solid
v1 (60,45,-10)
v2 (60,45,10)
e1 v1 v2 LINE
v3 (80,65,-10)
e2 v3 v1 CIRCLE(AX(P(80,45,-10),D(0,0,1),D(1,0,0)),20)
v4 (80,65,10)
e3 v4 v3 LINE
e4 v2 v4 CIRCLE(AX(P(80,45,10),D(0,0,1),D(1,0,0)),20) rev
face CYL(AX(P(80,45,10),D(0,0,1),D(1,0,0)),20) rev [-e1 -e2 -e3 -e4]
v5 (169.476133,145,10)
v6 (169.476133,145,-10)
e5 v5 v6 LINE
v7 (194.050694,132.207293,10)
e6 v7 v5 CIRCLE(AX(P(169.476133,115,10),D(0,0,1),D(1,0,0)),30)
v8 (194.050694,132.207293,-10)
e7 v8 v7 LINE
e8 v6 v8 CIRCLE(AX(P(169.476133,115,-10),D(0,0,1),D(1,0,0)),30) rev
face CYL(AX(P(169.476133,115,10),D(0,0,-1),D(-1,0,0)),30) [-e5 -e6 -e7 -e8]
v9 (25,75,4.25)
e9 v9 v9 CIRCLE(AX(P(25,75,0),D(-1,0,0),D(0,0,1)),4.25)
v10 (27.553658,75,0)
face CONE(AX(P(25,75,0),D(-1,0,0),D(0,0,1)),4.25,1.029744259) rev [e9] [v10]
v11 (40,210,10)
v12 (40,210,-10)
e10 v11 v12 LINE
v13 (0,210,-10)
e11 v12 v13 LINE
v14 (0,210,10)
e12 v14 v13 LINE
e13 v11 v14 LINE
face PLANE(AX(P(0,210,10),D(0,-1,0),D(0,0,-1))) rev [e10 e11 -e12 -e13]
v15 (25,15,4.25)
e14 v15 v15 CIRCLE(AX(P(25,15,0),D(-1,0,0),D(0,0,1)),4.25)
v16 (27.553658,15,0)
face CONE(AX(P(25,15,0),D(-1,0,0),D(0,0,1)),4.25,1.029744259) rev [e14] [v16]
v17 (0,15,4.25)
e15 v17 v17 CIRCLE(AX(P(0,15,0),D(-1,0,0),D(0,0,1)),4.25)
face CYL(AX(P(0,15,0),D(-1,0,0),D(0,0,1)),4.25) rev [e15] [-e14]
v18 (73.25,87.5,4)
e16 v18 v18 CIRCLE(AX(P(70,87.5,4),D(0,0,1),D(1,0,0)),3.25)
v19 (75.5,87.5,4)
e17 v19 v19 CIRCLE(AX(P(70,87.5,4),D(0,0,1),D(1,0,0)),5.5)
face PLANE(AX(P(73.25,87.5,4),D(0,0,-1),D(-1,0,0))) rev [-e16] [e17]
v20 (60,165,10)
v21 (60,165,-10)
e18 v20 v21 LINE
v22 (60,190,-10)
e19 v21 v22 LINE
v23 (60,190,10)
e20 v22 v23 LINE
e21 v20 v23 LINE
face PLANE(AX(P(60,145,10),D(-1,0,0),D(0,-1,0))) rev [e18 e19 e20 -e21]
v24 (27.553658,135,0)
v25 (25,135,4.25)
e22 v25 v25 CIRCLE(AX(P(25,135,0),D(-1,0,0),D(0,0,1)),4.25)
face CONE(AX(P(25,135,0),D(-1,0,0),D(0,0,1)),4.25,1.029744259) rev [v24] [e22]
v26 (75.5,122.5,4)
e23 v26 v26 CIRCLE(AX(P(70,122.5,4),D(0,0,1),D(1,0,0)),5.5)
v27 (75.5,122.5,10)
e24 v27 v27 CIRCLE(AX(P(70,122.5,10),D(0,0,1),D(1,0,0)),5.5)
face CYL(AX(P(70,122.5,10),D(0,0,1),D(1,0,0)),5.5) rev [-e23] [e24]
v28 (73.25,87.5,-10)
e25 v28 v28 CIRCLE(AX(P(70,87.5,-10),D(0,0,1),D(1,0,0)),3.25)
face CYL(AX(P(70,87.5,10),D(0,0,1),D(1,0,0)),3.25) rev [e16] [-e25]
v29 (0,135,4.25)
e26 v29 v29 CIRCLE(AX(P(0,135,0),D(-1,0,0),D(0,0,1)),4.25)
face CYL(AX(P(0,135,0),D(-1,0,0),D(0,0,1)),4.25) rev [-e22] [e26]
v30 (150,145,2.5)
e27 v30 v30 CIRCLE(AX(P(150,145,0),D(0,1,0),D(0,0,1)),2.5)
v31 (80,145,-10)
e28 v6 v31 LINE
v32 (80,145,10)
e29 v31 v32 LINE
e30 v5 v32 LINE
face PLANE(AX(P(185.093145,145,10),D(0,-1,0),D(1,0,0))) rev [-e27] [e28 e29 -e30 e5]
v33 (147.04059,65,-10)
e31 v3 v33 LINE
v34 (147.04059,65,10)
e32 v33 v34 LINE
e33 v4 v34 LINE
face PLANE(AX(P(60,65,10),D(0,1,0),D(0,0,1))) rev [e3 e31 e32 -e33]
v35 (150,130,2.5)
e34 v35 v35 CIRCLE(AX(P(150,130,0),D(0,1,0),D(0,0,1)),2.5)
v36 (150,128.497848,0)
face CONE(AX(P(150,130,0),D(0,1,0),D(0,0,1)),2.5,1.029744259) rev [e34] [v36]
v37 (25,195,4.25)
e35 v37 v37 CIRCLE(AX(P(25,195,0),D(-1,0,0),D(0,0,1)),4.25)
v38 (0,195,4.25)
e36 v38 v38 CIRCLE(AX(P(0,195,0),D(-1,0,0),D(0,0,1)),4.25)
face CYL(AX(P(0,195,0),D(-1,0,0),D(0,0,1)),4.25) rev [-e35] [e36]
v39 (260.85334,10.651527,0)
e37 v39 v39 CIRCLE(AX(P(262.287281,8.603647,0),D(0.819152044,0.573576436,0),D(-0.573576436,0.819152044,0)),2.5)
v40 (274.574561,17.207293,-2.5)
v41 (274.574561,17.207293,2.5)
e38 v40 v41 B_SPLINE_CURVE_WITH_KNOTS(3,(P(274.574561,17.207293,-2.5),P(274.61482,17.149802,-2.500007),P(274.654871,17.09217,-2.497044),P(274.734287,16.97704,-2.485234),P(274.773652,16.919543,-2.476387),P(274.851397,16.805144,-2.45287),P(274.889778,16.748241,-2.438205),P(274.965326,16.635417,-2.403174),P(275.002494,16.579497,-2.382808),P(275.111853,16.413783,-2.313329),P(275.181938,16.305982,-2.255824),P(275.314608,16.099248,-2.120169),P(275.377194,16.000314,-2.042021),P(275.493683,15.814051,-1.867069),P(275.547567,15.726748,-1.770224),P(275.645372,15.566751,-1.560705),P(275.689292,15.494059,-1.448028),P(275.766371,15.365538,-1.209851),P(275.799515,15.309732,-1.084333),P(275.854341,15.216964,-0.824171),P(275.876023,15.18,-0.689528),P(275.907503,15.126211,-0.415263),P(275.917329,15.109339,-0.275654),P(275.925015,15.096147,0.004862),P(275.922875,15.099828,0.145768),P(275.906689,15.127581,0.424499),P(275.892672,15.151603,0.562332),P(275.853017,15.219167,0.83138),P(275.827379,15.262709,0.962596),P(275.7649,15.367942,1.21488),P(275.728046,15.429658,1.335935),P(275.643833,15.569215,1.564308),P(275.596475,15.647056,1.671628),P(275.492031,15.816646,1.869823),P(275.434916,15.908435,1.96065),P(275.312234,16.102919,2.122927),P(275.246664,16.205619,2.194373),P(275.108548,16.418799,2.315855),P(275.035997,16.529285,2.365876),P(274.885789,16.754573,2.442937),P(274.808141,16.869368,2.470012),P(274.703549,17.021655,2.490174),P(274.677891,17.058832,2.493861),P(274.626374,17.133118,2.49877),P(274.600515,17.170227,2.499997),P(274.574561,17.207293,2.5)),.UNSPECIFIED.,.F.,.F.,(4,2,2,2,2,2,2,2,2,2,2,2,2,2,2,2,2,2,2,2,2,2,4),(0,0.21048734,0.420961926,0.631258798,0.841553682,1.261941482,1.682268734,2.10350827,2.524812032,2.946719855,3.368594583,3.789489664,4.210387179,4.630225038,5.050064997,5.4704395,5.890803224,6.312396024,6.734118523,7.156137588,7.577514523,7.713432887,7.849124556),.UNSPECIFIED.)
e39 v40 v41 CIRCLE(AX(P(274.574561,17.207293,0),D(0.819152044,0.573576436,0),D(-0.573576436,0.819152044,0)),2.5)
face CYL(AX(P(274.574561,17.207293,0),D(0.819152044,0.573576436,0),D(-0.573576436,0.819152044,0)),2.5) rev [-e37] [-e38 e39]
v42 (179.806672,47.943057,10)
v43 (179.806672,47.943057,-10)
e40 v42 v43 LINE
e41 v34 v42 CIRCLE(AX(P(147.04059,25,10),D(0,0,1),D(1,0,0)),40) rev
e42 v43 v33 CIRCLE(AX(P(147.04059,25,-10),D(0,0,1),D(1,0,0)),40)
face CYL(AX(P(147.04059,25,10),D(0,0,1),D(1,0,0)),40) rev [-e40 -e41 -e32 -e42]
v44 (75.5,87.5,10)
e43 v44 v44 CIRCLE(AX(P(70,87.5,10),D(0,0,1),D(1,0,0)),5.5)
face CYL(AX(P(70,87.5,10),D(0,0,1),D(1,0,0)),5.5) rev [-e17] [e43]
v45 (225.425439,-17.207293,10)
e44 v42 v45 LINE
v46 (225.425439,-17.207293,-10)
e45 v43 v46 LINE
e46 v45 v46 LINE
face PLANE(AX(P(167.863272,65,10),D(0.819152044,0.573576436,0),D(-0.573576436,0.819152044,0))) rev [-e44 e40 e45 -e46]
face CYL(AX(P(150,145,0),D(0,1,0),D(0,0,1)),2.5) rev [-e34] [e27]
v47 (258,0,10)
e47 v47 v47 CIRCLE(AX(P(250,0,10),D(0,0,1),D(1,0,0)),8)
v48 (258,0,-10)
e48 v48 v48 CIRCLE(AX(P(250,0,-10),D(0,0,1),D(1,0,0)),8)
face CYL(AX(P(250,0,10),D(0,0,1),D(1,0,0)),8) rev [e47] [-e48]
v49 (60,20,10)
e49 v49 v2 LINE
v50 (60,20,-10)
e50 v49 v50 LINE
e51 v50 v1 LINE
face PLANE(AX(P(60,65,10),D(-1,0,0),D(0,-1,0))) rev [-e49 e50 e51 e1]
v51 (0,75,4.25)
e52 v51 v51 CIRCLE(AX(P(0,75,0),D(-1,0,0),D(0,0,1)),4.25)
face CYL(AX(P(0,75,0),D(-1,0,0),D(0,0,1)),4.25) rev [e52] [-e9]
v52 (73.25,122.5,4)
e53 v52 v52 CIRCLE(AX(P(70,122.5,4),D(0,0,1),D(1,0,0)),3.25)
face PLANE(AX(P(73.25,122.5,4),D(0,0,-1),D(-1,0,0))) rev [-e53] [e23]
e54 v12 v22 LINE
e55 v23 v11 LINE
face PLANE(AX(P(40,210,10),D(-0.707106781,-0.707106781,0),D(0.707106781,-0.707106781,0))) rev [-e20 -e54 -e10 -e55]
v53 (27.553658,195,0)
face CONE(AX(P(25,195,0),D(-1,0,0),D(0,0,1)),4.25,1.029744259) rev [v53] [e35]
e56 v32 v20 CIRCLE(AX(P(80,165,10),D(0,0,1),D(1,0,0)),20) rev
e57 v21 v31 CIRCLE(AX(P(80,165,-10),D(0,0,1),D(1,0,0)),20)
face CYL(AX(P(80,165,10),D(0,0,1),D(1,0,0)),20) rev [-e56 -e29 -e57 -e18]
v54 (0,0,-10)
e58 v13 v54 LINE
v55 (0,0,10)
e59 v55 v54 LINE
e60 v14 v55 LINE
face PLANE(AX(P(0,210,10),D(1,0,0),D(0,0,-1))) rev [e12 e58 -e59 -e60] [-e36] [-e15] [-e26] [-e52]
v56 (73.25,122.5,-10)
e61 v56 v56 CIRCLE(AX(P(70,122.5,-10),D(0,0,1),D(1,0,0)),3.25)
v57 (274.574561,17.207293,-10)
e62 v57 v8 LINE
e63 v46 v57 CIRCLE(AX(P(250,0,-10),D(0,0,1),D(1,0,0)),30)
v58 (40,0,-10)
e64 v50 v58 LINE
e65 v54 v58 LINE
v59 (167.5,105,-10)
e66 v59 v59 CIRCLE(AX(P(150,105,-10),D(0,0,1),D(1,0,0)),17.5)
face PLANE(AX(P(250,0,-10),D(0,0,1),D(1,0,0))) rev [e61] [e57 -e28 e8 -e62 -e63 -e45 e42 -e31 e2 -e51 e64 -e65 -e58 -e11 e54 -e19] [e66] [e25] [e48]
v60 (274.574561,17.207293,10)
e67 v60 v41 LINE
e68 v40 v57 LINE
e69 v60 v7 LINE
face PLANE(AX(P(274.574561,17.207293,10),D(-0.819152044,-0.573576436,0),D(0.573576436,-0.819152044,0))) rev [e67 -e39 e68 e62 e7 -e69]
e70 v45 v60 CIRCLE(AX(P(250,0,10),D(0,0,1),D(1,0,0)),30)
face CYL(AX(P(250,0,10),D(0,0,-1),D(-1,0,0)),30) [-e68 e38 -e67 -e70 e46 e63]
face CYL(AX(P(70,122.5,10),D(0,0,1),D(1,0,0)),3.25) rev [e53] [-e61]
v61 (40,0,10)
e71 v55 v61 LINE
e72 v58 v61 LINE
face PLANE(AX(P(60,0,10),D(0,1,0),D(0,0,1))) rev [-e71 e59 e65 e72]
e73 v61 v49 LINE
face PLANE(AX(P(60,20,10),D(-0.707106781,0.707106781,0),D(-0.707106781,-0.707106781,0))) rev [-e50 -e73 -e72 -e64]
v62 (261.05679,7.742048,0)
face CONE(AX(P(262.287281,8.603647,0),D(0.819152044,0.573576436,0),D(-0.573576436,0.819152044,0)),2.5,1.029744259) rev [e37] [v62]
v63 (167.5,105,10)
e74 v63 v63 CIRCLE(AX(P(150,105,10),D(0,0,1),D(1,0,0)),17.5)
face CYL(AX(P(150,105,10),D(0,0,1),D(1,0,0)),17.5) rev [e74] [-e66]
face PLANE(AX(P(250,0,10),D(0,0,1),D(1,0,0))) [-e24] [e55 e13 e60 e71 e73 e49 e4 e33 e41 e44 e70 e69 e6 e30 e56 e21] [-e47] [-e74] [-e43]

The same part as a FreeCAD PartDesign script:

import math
import FreeCAD as App
import Part
import Sketcher

V = App.Vector
Q = App.Units.Quantity


def edges_at(feature, points):
    """Names of the edges that pass closest to the given points."""
    edges = feature.Shape.Edges
    near = lambda p: min(range(len(edges)), key=lambda i: edges[i].distToShape(Part.Vertex(*p))[0])
    return sorted({f"Edge{near(p) + 1}" for p in points})

doc = App.newDocument("Part")
body = doc.addObject("PartDesign::Body", "Body")

# Sketch on XY plane
sketch1 = doc.addObject("Sketcher::SketchObject", "Sketch")
body.addObject(sketch1)
sketch1.AttachmentSupport = (doc.XY_Plane, [""])
sketch1.MapMode = "FlatFace"
sketch1.addGeometry([
    Part.LineSegment(V(60, 210, 0), V(0, 210, 0)),  # 0
    Part.LineSegment(V(0, 210, 0), V(0, 0, 0)),  # 1
    Part.LineSegment(V(0, 0, 0), V(60, 0, 0)),  # 2
    Part.LineSegment(V(60, 0, 0), V(60, 65, 0)),  # 3
    Part.LineSegment(V(60, 65, 0), V(168, 65, 0)),  # 4
    Part.LineSegment(V(168, 65, 0), V(225, -17, 0)),  # 5
    Part.ArcOfCircle(Part.Circle(V(250, 0, 0), V(0, 0, 1), 30), math.radians(-145), math.radians(35)),  # 6
    Part.LineSegment(V(275, 17, 0), V(185, 145, 0)),  # 7
    Part.LineSegment(V(185, 145, 0), V(60, 145, 0)),  # 8
    Part.LineSegment(V(60, 145, 0), V(60, 210, 0)),  # 9
], False)
sketch1.addConstraint([
    Sketcher.Constraint("Coincident", 0, 2, 1, 1),
    Sketcher.Constraint("Coincident", 1, 2, 2, 1),
    Sketcher.Constraint("Coincident", 2, 2, 3, 1),
    Sketcher.Constraint("Coincident", 3, 2, 4, 1),
    Sketcher.Constraint("Coincident", 4, 2, 5, 1),
    Sketcher.Constraint("Tangent", 5, 2, 6, 1),
    Sketcher.Constraint("Tangent", 6, 2, 7, 1),
    Sketcher.Constraint("Coincident", 7, 2, 8, 1),
    Sketcher.Constraint("Coincident", 8, 2, 9, 1),
    Sketcher.Constraint("Coincident", 9, 2, 0, 1),
    Sketcher.Constraint("Horizontal", 0),
    Sketcher.Constraint("Vertical", 1),
    Sketcher.Constraint("Horizontal", 2),
    Sketcher.Constraint("Vertical", 3),
    Sketcher.Constraint("Horizontal", 4),
    Sketcher.Constraint("Horizontal", 8),
    Sketcher.Constraint("Vertical", 9),
    Sketcher.Constraint("Coincident", 1, 2, -1, 1),
    Sketcher.Constraint("PointOnObject", 6, 3, -1),
    Sketcher.Constraint("Parallel", 5, 7),
    Sketcher.Constraint("Vertical", 3, 2, 8, 2),
    Sketcher.Constraint("Equal", 3, 9),
    Sketcher.Constraint("Radius", 6, Q("30 mm")),
    Sketcher.Constraint("DistanceX", 0, 2, 0, 1, Q("60 mm")),
    Sketcher.Constraint("DistanceY", 1, 2, 1, 1, Q("210 mm")),
    Sketcher.Constraint("DistanceY", 3, 1, 3, 2, Q("65 mm")),
    Sketcher.Constraint("Angle", 5, Q("-55 deg")),
    Sketcher.Constraint("DistanceX", -1, 1, 6, 3, Q("250 mm")),
])
pad1 = doc.addObject("PartDesign::Pad", "Pad")
body.addObject(pad1)
pad1.Profile = sketch1
pad1.Length = 20
pad1.Midplane = True
doc.recompute()

chamfer = doc.addObject("PartDesign::Chamfer", "Chamfer")
body.addObject(chamfer)
chamfer.Base = (pad1, edges_at(pad1, [(60, 0, 0), (60, 210, 0)]))
chamfer.Size = 20
doc.recompute()

fillet = doc.addObject("PartDesign::Fillet", "Fillet")
body.addObject(fillet)
fillet.Base = (chamfer, edges_at(chamfer, [(60, 145, 0), (60, 65, 0)]))
fillet.Radius = 20
doc.recompute()

fillet2 = doc.addObject("PartDesign::Fillet", "Fillet001")
body.addObject(fillet2)
fillet2.Base = (fillet, edges_at(fillet, [(185.093, 145, 0)]))
fillet2.Radius = 30
doc.recompute()

fillet3 = doc.addObject("PartDesign::Fillet", "Fillet002")
body.addObject(fillet3)
fillet3.Base = (fillet2, edges_at(fillet2, [(167.863, 65, 0)]))
fillet3.Radius = 40

# Sketch on YZ plane
sketch2 = doc.addObject("Sketcher::SketchObject", "Sketch001")
body.addObject(sketch2)
sketch2.AttachmentSupport = (doc.YZ_Plane, [""])
sketch2.MapMode = "FlatFace"
sketch2.addGeometry([
    Part.Circle(V(195, 0, 0), V(0, 0, 1), 4.2),
    Part.Circle(V(135, 0, 0), V(0, 0, 1), 4.2),
    Part.Circle(V(75, 0, 0), V(0, 0, 1), 4.2),
    Part.Circle(V(15, 0, 0), V(0, 0, 1), 4.2),
], False)
sketch2.addConstraint([
    Sketcher.Constraint("Equal", 0, 1),
    Sketcher.Constraint("Equal", 1, 2),
    Sketcher.Constraint("Equal", 2, 3),
    Sketcher.Constraint("PointOnObject", 0, 3, -1),
    Sketcher.Constraint("PointOnObject", 1, 3, -1),
    Sketcher.Constraint("PointOnObject", 2, 3, -1),
    Sketcher.Constraint("PointOnObject", 3, 3, -1),
    Sketcher.Constraint("Diameter", 0, Q("8.5 mm")),
    Sketcher.Constraint("DistanceX", -1, 1, 0, 3, Q("195 mm")),
    Sketcher.Constraint("DistanceX", -1, 1, 1, 3, Q("135 mm")),
    Sketcher.Constraint("DistanceX", -1, 1, 2, 3, Q("75 mm")),
    Sketcher.Constraint("DistanceX", -1, 1, 3, 3, Q("15 mm")),
])
doc.recompute()
hole = doc.addObject("PartDesign::Hole", "Hole")
body.addObject(hole)
hole.Profile = sketch2
hole.ThreadType = "None"
hole.Diameter = 8.5
hole.DepthType = "Dimension"
hole.Depth = 25
hole.DrillPoint = "Angled"
hole.DrillPointAngle = 118
hole.Reversed = True

# Sketch on XY plane
sketch3 = doc.addObject("Sketcher::SketchObject", "Sketch002")
body.addObject(sketch3)
sketch3.AttachmentSupport = (doc.XY_Plane, [""])
sketch3.MapMode = "FlatFace"
sketch3.AttachmentOffset = App.Placement(V(0, 0, 10), App.Rotation())
sketch3.addGeometry([
    Part.Circle(V(70, 122.5, 0), V(0, 0, 1), 3.2),
    Part.Circle(V(70, 87.5, 0), V(0, 0, 1), 3.2),
], False)
sketch3.addConstraint([
    Sketcher.Constraint("Equal", 0, 1),
    Sketcher.Constraint("Vertical", 0, 3, 1, 3),
    Sketcher.Constraint("Diameter", 0, Q("6.5 mm")),
    Sketcher.Constraint("DistanceX", -1, 1, 0, 3, Q("70 mm")),
    Sketcher.Constraint("DistanceY", 1, 3, 0, 3, Q("35 mm")),
    Sketcher.Constraint("DistanceY", -1, 1, 0, 3, Q("122.5 mm")),
])
doc.recompute()
hole2 = doc.addObject("PartDesign::Hole", "Hole001")
body.addObject(hole2)
hole2.Profile = sketch3
hole2.ThreadType = "None"
hole2.Diameter = 6.5
hole2.DepthType = "ThroughAll"
hole2.HoleCutType = "Counterbore"
hole2.HoleCutDiameter = 11
hole2.HoleCutDepth = 6

# Sketch on XY plane
sketch4 = doc.addObject("Sketcher::SketchObject", "Sketch003")
body.addObject(sketch4)
sketch4.AttachmentSupport = (doc.XY_Plane, [""])
sketch4.MapMode = "FlatFace"
sketch4.AttachmentOffset = App.Placement(V(0, 0, 10), App.Rotation())
sketch4.addGeometry(Part.Circle(V(150, 105, 0), V(0, 0, 1), 18), False)
sketch4.addConstraint([
    Sketcher.Constraint("Diameter", 0, Q("35 mm")),
    Sketcher.Constraint("DistanceX", -1, 1, 0, 3, Q("150 mm")),
    Sketcher.Constraint("DistanceY", -1, 1, 0, 3, Q("105 mm")),
])
doc.recompute()
hole3 = doc.addObject("PartDesign::Hole", "Hole002")
body.addObject(hole3)
hole3.Profile = sketch4
hole3.ThreadType = "None"
hole3.Diameter = 35
hole3.DepthType = "ThroughAll"

# Sketch on XY plane
sketch5 = doc.addObject("Sketcher::SketchObject", "Sketch004")
body.addObject(sketch5)
sketch5.AttachmentSupport = (doc.XY_Plane, [""])
sketch5.MapMode = "FlatFace"
sketch5.AttachmentOffset = App.Placement(V(0, 0, 10), App.Rotation())
sketch5.addGeometry(Part.Circle(V(250, 0, 0), V(0, 0, 1), 8), False)
sketch5.addConstraint([
    Sketcher.Constraint("PointOnObject", 0, 3, -1),
    Sketcher.Constraint("Diameter", 0, Q("16 mm")),
    Sketcher.Constraint("DistanceX", -1, 1, 0, 3, Q("250 mm")),
])
doc.recompute()
hole4 = doc.addObject("PartDesign::Hole", "Hole003")
body.addObject(hole4)
hole4.Profile = sketch5
hole4.ThreadType = "None"
hole4.Diameter = 16
hole4.DepthType = "Dimension"
hole4.Depth = 38
hole4.DrillPoint = "Flat"

# Sketch on XZ plane
sketch6 = doc.addObject("Sketcher::SketchObject", "Sketch005")
body.addObject(sketch6)
sketch6.AttachmentSupport = (doc.XZ_Plane, [""])
sketch6.MapMode = "FlatFace"
sketch6.AttachmentOffset = App.Placement(V(0, 0, -145), App.Rotation())
sketch6.addGeometry(Part.Circle(V(150, 0, 0), V(0, 0, 1), 2.5), False)
sketch6.addConstraint([
    Sketcher.Constraint("PointOnObject", 0, 3, -1),
    Sketcher.Constraint("Diameter", 0, Q("5 mm")),
    Sketcher.Constraint("DistanceX", -1, 1, 0, 3, Q("150 mm")),
])
doc.recompute()
hole5 = doc.addObject("PartDesign::Hole", "Hole004")
body.addObject(hole5)
hole5.Profile = sketch6
hole5.ThreadType = "None"
hole5.Diameter = 5
hole5.DepthType = "Dimension"
hole5.Depth = 15
hole5.DrillPoint = "Angled"
hole5.DrillPointAngle = 118
hole5.Reversed = True

# Sketch on an angled plane
sketch7 = doc.addObject("Sketcher::SketchObject", "Sketch006")
body.addObject(sketch7)
sketch7.Placement = App.Placement(V(192.327079, 134.668871, 0), App.Rotation(V(0, 0, -1), V(-0.573576436, 0.819152044, 0), V(0.819152044, 0.573576436, 0), "ZXY"))
sketch7.addGeometry(Part.Circle(V(0, -143.4, 0), V(0, 0, 1), 2.5), False)
sketch7.addConstraint([
    Sketcher.Constraint("PointOnObject", 0, 3, -2),
    Sketcher.Constraint("Diameter", 0, Q("5 mm")),
    Sketcher.Constraint("DistanceY", 0, 3, -1, 1, Q("143.394109 mm")),
])
doc.recompute()
hole6 = doc.addObject("PartDesign::Hole", "Hole005")
body.addObject(hole6)
hole6.Profile = sketch7
hole6.ThreadType = "None"
hole6.Diameter = 5
hole6.DepthType = "Dimension"
hole6.Depth = 15
hole6.DrillPoint = "Angled"
hole6.DrillPointAngle = 118

doc.recompute()
